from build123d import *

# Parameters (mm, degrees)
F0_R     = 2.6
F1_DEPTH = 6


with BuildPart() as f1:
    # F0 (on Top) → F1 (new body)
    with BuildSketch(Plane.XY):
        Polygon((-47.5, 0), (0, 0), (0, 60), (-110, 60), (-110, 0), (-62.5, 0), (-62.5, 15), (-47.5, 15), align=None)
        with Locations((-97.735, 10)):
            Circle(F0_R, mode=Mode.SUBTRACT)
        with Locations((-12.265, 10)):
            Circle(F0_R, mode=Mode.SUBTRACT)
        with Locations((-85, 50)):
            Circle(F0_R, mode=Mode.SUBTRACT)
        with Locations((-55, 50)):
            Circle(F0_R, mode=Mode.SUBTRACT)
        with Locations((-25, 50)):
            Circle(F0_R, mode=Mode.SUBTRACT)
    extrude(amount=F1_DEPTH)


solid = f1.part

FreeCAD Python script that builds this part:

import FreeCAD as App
import Part
import Sketcher

V = App.Vector
Q = App.Units.Quantity


def add_polygon(sketch, points):
    """Adds a closed chain of lines whose ends are joined by coincident constraints."""
    first, n = sketch.GeometryCount, len(points)
    for a, b in zip(points, points[1:] + points[:1]):
        sketch.addGeometry(Part.LineSegment(App.Vector(*a, 0), App.Vector(*b, 0)), False)
    for i in range(n):
        sketch.addConstraint(Sketcher.Constraint("Coincident", first + i, 2, first + (i + 1) % n, 1))

doc = App.newDocument("Part")
body = doc.addObject("PartDesign::Body", "Body")

# Sketch on XY plane
sketch1 = body.newObject("Sketcher::SketchObject", "Sketch")
sketch1.AttachmentSupport = (doc.getObject("XY_Plane"), [""])
sketch1.MapMode = "FlatFace"
add_polygon(sketch1, [(-47.5, 0), (0, 0), (0, 60), (-110, 60), (-110, 0), (-62.5, 0), (-62.5, 15), (-47.5, 15)])  # lines 0-7
sketch1.addGeometry(Part.Circle(V(-97.735, 10, 0), V(0, 0, 1), 2.6), False)  # 8
sketch1.addGeometry(Part.Circle(V(-12.265, 10, 0), V(0, 0, 1), 2.6), False)  # 9
sketch1.addGeometry(Part.Circle(V(-85, 50, 0), V(0, 0, 1), 2.6), False)  # 10
sketch1.addGeometry(Part.Circle(V(-55, 50, 0), V(0, 0, 1), 2.6), False)  # 11
sketch1.addGeometry(Part.Circle(V(-25, 50, 0), V(0, 0, 1), 2.6), False)  # 12
sketch1.addConstraint([
    Sketcher.Constraint("Horizontal", 0),
    Sketcher.Constraint("Vertical", 1),
    Sketcher.Constraint("Horizontal", 2),
    Sketcher.Constraint("Vertical", 3),
    Sketcher.Constraint("Horizontal", 4),
    Sketcher.Constraint("Vertical", 5),
    Sketcher.Constraint("Horizontal", 6),
    Sketcher.Constraint("Vertical", 7),
    Sketcher.Constraint("Coincident", 0, 2, -1, 1),
    Sketcher.Constraint("Equal", 8, 9),
    Sketcher.Constraint("Equal", 9, 10),
    Sketcher.Constraint("Equal", 10, 11),
    Sketcher.Constraint("Equal", 11, 12),
    Sketcher.Constraint("PointOnObject", 3, 2, -1),
    Sketcher.Constraint("Horizontal", 8, 3, 9, 3),
    Sketcher.Constraint("Horizontal", 10, 3, 11, 3),
    Sketcher.Constraint("Horizontal", 11, 3, 12, 3),
    Sketcher.Constraint("Equal", 0, 4),
    Sketcher.Constraint("Equal", 6, 5),
    Sketcher.Constraint("Diameter", 8, Q("5.2 mm")),
    Sketcher.Constraint("DistanceX", 2, 2, 2, 1, Q("110 mm")),
    Sketcher.Constraint("DistanceX", 6, 1, 6, 2, Q("15 mm")),
    Sketcher.Constraint("DistanceY", 1, 1, 1, 2, Q("60 mm")),
    Sketcher.Constraint("DistanceY", -1, 1, 8, 3, Q("10 mm")),
    Sketcher.Constraint("DistanceX", 10, 3, -1, 1, Q("85 mm")),
    Sketcher.Constraint("DistanceY", -1, 1, 10, 3, Q("50 mm")),
    Sketcher.Constraint("DistanceX", 11, 3, -1, 1, Q("55 mm")),
    Sketcher.Constraint("DistanceX", 12, 3, -1, 1, Q("25 mm")),
    Sketcher.Constraint("DistanceX", 8, 3, 9, 3, Q("85.47 mm")),
    Sketcher.Constraint("DistanceX", 8, 3, -1, 1, Q("97.735 mm")),
])
pad1 = body.newObject("PartDesign::Pad", "Pad")
pad1.Profile = sketch1
pad1.Length = 6

doc.recompute()
